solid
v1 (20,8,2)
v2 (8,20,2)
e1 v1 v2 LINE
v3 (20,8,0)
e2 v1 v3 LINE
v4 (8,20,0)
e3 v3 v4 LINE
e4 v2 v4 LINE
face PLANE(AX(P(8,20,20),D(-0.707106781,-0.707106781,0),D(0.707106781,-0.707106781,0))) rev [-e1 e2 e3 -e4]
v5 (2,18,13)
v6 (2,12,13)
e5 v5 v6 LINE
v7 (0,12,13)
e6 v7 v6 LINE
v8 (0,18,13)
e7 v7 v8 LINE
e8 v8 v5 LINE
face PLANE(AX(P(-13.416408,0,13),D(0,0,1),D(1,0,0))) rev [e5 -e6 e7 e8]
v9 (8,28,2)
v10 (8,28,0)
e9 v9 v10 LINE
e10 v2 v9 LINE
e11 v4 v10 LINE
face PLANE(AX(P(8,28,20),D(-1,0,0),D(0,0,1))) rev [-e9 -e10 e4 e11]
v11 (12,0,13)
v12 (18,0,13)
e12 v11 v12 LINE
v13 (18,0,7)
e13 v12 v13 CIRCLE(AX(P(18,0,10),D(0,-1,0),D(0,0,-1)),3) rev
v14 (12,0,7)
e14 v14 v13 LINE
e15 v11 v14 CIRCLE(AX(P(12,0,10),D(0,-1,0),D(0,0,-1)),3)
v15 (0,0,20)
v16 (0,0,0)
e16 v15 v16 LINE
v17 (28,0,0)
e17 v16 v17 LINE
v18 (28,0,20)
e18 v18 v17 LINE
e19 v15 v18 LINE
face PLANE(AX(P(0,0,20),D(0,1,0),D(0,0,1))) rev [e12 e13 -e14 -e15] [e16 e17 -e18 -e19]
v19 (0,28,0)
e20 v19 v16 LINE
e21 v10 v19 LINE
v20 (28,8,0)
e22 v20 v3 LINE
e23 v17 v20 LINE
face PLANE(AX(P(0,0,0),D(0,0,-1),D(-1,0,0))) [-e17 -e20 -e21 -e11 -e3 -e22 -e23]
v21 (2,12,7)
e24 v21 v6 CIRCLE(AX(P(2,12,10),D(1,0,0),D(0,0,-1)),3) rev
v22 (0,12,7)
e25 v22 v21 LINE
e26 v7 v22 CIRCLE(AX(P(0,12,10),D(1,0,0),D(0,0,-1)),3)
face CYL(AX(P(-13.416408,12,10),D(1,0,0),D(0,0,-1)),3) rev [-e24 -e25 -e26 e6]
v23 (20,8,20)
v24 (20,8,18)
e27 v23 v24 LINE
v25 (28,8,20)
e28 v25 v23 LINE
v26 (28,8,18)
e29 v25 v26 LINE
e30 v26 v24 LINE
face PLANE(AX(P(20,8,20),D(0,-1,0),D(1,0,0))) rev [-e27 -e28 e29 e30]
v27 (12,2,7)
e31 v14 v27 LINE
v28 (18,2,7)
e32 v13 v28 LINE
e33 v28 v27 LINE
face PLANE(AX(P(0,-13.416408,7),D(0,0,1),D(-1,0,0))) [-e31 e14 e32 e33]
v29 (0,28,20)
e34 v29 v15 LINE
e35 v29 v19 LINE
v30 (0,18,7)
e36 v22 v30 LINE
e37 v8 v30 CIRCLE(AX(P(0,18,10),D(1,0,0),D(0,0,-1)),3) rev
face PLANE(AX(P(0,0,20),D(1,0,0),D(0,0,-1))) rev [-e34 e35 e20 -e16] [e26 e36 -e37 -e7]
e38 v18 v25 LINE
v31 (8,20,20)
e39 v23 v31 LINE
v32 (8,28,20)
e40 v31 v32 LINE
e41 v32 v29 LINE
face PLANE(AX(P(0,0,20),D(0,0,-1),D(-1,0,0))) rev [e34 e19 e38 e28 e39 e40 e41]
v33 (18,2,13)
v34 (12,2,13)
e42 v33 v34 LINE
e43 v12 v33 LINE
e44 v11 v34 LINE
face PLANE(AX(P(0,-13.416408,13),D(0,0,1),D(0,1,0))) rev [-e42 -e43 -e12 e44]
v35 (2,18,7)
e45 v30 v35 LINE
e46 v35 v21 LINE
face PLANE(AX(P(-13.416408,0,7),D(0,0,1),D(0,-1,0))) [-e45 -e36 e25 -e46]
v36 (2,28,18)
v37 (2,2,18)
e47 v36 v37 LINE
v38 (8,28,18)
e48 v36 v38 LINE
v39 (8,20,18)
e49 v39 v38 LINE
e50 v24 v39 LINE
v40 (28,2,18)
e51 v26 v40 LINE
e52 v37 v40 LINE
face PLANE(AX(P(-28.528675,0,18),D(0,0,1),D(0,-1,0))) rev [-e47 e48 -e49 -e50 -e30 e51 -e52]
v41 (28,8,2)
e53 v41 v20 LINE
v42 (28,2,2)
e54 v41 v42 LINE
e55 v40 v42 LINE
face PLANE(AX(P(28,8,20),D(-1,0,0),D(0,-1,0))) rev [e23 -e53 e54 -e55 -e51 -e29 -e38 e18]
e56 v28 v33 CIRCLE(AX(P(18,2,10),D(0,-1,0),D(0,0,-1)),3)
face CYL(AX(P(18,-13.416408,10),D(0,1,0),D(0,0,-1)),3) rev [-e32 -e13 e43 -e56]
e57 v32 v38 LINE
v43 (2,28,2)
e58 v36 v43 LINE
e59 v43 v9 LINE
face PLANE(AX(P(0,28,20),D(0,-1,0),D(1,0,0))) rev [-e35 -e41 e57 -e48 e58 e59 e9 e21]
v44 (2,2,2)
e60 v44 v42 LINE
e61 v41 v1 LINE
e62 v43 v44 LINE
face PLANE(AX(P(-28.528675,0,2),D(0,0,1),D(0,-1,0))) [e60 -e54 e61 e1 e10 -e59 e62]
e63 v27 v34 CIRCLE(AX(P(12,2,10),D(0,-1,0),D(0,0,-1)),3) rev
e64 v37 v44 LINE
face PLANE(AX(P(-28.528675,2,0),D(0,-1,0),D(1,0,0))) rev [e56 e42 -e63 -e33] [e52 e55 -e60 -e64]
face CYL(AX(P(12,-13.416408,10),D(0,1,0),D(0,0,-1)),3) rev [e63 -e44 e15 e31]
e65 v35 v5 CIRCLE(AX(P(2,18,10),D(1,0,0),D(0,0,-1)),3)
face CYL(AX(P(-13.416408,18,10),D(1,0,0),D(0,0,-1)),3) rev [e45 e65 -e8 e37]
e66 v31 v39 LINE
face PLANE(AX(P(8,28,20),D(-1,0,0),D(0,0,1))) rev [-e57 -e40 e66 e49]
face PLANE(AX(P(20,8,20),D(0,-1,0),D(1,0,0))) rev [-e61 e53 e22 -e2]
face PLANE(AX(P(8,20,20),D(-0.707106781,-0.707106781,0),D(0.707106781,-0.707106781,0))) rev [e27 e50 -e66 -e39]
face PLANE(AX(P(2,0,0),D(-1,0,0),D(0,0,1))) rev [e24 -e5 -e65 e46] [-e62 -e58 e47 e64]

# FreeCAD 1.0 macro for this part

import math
import FreeCAD as App
import Part
import Sketcher

V = App.Vector
Q = App.Units.Quantity


def add_polygon(sketch, points):
    """Adds a closed chain of lines whose ends are joined by coincident constraints."""
    first, n = sketch.GeometryCount, len(points)
    for a, b in zip(points, points[1:] + points[:1]):
        sketch.addGeometry(Part.LineSegment(App.Vector(*a, 0), App.Vector(*b, 0)), False)
    for i in range(n):
        sketch.addConstraint(Sketcher.Constraint("Coincident", first + i, 2, first + (i + 1) % n, 1))

doc = App.newDocument("Part")
body = doc.addObject("PartDesign::Body", "Body")

# Sketch on XY plane
sketch1 = body.newObject("Sketcher::SketchObject", "Sketch")
sketch1.AttachmentSupport = (doc.getObject("XY_Plane"), [""])
sketch1.MapMode = "FlatFace"
add_polygon(sketch1, [(0, 28), (0, 0), (28, 0), (28, 8), (20, 8), (8, 20), (8, 28)])  # lines 0-6
sketch1.addConstraint([
    Sketcher.Constraint("Vertical", 0),
    Sketcher.Constraint("Horizontal", 1),
    Sketcher.Constraint("Vertical", 2),
    Sketcher.Constraint("Horizontal", 3),
    Sketcher.Constraint("Vertical", 5),
    Sketcher.Constraint("Horizontal", 6),
    Sketcher.Constraint("Coincident", 0, 2, -1, 1),
    Sketcher.Constraint("Equal", 3, 6),
    Sketcher.Constraint("Equal", 1, 0),
    Sketcher.Constraint("Equal", 6, 2),
    Sketcher.Constraint("Equal", 2, 5),
    Sketcher.Constraint("DistanceX", 1, 1, 1, 2, Q("28 mm")),
    Sketcher.Constraint("DistanceX", 3, 2, 3, 1, Q("8 mm")),
])
pad1 = body.newObject("PartDesign::Pad", "Pad")
pad1.Profile = sketch1
pad1.Length = 20

# Sketch on YZ plane
sketch2 = body.newObject("Sketcher::SketchObject", "Sketch001")
sketch2.AttachmentSupport = (doc.getObject("YZ_Plane"), [""])
sketch2.MapMode = "FlatFace"
sketch2.AttachmentOffset = App.Placement(V(0, 0, 2), App.Rotation())
add_polygon(sketch2, [(28, 18), (2, 18), (2, 2), (28, 2)])  # lines 0-3
sketch2.addConstraint([
    Sketcher.Constraint("Horizontal", 0),
    Sketcher.Constraint("Vertical", 1),
    Sketcher.Constraint("Horizontal", 2),
    Sketcher.Constraint("Vertical", 3),
    Sketcher.Constraint("DistanceX", 0, 2, 0, 1, Q("26 mm")),
    Sketcher.Constraint("DistanceY", 1, 2, 1, 1, Q("16 mm")),
    Sketcher.Constraint("DistanceX", -1, 1, 0, 2, Q("2 mm")),
    Sketcher.Constraint("DistanceY", -1, 1, 0, 2, Q("18 mm")),
])
pocket1 = body.newObject("PartDesign::Pocket", "Pocket")
pocket1.Profile = sketch2
pocket1.Length = 26
pocket1.Reversed = True

# Sketch on YZ plane
sketch3 = body.newObject("Sketcher::SketchObject", "Sketch002")
sketch3.AttachmentSupport = (doc.getObject("YZ_Plane"), [""])
sketch3.MapMode = "FlatFace"
sketch3.AttachmentOffset = App.Placement(V(0, 0, 2), App.Rotation())
sketch3.addGeometry([
    Part.LineSegment(V(18, 13, 0), V(12, 13, 0)),
    Part.ArcOfCircle(Part.Circle(V(12, 10, 0), V(0, 0, 1), 3), math.radians(90), math.radians(270)),
    Part.LineSegment(V(12, 7, 0), V(18, 7, 0)),
    Part.ArcOfCircle(Part.Circle(V(18, 10, 0), V(0, 0, 1), 3), math.radians(-90), math.radians(90)),
], False)
sketch3.addConstraint([
    Sketcher.Constraint("Tangent", 0, 2, 1, 1),
    Sketcher.Constraint("Tangent", 1, 2, 2, 1),
    Sketcher.Constraint("Tangent", 2, 2, 3, 1),
    Sketcher.Constraint("Tangent", 3, 2, 0, 1),
    Sketcher.Constraint("Horizontal", 0),
    Sketcher.Constraint("Horizontal", 2),
    Sketcher.Constraint("Radius", 1, Q("3 mm")),
    Sketcher.Constraint("DistanceX", 0, 2, 0, 1, Q("6 mm")),
    Sketcher.Constraint("DistanceX", -1, 1, 1, 3, Q("12 mm")),
    Sketcher.Constraint("DistanceY", -1, 1, 1, 3, Q("10 mm")),
])
pocket2 = body.newObject("PartDesign::Pocket", "Pocket001")
pocket2.Profile = sketch3
pocket2.Length = 2
doc.recompute()

datumplane = body.newObject("PartDesign::Plane", "DatumPlane")
datumplane.Placement = App.Placement(V(0, 0, 0), App.Rotation(V(-0.707106781, -0.707106781, 0), V(0, 0, -1), V(0.707106781, -0.707106781, 0), "ZXY"))
mirrored = body.newObject("PartDesign::Mirrored", "Mirrored")
mirrored.Originals = [pocket2]
mirrored.MirrorPlane = (datumplane, [""])
body.Tip = mirrored

doc.recompute()
